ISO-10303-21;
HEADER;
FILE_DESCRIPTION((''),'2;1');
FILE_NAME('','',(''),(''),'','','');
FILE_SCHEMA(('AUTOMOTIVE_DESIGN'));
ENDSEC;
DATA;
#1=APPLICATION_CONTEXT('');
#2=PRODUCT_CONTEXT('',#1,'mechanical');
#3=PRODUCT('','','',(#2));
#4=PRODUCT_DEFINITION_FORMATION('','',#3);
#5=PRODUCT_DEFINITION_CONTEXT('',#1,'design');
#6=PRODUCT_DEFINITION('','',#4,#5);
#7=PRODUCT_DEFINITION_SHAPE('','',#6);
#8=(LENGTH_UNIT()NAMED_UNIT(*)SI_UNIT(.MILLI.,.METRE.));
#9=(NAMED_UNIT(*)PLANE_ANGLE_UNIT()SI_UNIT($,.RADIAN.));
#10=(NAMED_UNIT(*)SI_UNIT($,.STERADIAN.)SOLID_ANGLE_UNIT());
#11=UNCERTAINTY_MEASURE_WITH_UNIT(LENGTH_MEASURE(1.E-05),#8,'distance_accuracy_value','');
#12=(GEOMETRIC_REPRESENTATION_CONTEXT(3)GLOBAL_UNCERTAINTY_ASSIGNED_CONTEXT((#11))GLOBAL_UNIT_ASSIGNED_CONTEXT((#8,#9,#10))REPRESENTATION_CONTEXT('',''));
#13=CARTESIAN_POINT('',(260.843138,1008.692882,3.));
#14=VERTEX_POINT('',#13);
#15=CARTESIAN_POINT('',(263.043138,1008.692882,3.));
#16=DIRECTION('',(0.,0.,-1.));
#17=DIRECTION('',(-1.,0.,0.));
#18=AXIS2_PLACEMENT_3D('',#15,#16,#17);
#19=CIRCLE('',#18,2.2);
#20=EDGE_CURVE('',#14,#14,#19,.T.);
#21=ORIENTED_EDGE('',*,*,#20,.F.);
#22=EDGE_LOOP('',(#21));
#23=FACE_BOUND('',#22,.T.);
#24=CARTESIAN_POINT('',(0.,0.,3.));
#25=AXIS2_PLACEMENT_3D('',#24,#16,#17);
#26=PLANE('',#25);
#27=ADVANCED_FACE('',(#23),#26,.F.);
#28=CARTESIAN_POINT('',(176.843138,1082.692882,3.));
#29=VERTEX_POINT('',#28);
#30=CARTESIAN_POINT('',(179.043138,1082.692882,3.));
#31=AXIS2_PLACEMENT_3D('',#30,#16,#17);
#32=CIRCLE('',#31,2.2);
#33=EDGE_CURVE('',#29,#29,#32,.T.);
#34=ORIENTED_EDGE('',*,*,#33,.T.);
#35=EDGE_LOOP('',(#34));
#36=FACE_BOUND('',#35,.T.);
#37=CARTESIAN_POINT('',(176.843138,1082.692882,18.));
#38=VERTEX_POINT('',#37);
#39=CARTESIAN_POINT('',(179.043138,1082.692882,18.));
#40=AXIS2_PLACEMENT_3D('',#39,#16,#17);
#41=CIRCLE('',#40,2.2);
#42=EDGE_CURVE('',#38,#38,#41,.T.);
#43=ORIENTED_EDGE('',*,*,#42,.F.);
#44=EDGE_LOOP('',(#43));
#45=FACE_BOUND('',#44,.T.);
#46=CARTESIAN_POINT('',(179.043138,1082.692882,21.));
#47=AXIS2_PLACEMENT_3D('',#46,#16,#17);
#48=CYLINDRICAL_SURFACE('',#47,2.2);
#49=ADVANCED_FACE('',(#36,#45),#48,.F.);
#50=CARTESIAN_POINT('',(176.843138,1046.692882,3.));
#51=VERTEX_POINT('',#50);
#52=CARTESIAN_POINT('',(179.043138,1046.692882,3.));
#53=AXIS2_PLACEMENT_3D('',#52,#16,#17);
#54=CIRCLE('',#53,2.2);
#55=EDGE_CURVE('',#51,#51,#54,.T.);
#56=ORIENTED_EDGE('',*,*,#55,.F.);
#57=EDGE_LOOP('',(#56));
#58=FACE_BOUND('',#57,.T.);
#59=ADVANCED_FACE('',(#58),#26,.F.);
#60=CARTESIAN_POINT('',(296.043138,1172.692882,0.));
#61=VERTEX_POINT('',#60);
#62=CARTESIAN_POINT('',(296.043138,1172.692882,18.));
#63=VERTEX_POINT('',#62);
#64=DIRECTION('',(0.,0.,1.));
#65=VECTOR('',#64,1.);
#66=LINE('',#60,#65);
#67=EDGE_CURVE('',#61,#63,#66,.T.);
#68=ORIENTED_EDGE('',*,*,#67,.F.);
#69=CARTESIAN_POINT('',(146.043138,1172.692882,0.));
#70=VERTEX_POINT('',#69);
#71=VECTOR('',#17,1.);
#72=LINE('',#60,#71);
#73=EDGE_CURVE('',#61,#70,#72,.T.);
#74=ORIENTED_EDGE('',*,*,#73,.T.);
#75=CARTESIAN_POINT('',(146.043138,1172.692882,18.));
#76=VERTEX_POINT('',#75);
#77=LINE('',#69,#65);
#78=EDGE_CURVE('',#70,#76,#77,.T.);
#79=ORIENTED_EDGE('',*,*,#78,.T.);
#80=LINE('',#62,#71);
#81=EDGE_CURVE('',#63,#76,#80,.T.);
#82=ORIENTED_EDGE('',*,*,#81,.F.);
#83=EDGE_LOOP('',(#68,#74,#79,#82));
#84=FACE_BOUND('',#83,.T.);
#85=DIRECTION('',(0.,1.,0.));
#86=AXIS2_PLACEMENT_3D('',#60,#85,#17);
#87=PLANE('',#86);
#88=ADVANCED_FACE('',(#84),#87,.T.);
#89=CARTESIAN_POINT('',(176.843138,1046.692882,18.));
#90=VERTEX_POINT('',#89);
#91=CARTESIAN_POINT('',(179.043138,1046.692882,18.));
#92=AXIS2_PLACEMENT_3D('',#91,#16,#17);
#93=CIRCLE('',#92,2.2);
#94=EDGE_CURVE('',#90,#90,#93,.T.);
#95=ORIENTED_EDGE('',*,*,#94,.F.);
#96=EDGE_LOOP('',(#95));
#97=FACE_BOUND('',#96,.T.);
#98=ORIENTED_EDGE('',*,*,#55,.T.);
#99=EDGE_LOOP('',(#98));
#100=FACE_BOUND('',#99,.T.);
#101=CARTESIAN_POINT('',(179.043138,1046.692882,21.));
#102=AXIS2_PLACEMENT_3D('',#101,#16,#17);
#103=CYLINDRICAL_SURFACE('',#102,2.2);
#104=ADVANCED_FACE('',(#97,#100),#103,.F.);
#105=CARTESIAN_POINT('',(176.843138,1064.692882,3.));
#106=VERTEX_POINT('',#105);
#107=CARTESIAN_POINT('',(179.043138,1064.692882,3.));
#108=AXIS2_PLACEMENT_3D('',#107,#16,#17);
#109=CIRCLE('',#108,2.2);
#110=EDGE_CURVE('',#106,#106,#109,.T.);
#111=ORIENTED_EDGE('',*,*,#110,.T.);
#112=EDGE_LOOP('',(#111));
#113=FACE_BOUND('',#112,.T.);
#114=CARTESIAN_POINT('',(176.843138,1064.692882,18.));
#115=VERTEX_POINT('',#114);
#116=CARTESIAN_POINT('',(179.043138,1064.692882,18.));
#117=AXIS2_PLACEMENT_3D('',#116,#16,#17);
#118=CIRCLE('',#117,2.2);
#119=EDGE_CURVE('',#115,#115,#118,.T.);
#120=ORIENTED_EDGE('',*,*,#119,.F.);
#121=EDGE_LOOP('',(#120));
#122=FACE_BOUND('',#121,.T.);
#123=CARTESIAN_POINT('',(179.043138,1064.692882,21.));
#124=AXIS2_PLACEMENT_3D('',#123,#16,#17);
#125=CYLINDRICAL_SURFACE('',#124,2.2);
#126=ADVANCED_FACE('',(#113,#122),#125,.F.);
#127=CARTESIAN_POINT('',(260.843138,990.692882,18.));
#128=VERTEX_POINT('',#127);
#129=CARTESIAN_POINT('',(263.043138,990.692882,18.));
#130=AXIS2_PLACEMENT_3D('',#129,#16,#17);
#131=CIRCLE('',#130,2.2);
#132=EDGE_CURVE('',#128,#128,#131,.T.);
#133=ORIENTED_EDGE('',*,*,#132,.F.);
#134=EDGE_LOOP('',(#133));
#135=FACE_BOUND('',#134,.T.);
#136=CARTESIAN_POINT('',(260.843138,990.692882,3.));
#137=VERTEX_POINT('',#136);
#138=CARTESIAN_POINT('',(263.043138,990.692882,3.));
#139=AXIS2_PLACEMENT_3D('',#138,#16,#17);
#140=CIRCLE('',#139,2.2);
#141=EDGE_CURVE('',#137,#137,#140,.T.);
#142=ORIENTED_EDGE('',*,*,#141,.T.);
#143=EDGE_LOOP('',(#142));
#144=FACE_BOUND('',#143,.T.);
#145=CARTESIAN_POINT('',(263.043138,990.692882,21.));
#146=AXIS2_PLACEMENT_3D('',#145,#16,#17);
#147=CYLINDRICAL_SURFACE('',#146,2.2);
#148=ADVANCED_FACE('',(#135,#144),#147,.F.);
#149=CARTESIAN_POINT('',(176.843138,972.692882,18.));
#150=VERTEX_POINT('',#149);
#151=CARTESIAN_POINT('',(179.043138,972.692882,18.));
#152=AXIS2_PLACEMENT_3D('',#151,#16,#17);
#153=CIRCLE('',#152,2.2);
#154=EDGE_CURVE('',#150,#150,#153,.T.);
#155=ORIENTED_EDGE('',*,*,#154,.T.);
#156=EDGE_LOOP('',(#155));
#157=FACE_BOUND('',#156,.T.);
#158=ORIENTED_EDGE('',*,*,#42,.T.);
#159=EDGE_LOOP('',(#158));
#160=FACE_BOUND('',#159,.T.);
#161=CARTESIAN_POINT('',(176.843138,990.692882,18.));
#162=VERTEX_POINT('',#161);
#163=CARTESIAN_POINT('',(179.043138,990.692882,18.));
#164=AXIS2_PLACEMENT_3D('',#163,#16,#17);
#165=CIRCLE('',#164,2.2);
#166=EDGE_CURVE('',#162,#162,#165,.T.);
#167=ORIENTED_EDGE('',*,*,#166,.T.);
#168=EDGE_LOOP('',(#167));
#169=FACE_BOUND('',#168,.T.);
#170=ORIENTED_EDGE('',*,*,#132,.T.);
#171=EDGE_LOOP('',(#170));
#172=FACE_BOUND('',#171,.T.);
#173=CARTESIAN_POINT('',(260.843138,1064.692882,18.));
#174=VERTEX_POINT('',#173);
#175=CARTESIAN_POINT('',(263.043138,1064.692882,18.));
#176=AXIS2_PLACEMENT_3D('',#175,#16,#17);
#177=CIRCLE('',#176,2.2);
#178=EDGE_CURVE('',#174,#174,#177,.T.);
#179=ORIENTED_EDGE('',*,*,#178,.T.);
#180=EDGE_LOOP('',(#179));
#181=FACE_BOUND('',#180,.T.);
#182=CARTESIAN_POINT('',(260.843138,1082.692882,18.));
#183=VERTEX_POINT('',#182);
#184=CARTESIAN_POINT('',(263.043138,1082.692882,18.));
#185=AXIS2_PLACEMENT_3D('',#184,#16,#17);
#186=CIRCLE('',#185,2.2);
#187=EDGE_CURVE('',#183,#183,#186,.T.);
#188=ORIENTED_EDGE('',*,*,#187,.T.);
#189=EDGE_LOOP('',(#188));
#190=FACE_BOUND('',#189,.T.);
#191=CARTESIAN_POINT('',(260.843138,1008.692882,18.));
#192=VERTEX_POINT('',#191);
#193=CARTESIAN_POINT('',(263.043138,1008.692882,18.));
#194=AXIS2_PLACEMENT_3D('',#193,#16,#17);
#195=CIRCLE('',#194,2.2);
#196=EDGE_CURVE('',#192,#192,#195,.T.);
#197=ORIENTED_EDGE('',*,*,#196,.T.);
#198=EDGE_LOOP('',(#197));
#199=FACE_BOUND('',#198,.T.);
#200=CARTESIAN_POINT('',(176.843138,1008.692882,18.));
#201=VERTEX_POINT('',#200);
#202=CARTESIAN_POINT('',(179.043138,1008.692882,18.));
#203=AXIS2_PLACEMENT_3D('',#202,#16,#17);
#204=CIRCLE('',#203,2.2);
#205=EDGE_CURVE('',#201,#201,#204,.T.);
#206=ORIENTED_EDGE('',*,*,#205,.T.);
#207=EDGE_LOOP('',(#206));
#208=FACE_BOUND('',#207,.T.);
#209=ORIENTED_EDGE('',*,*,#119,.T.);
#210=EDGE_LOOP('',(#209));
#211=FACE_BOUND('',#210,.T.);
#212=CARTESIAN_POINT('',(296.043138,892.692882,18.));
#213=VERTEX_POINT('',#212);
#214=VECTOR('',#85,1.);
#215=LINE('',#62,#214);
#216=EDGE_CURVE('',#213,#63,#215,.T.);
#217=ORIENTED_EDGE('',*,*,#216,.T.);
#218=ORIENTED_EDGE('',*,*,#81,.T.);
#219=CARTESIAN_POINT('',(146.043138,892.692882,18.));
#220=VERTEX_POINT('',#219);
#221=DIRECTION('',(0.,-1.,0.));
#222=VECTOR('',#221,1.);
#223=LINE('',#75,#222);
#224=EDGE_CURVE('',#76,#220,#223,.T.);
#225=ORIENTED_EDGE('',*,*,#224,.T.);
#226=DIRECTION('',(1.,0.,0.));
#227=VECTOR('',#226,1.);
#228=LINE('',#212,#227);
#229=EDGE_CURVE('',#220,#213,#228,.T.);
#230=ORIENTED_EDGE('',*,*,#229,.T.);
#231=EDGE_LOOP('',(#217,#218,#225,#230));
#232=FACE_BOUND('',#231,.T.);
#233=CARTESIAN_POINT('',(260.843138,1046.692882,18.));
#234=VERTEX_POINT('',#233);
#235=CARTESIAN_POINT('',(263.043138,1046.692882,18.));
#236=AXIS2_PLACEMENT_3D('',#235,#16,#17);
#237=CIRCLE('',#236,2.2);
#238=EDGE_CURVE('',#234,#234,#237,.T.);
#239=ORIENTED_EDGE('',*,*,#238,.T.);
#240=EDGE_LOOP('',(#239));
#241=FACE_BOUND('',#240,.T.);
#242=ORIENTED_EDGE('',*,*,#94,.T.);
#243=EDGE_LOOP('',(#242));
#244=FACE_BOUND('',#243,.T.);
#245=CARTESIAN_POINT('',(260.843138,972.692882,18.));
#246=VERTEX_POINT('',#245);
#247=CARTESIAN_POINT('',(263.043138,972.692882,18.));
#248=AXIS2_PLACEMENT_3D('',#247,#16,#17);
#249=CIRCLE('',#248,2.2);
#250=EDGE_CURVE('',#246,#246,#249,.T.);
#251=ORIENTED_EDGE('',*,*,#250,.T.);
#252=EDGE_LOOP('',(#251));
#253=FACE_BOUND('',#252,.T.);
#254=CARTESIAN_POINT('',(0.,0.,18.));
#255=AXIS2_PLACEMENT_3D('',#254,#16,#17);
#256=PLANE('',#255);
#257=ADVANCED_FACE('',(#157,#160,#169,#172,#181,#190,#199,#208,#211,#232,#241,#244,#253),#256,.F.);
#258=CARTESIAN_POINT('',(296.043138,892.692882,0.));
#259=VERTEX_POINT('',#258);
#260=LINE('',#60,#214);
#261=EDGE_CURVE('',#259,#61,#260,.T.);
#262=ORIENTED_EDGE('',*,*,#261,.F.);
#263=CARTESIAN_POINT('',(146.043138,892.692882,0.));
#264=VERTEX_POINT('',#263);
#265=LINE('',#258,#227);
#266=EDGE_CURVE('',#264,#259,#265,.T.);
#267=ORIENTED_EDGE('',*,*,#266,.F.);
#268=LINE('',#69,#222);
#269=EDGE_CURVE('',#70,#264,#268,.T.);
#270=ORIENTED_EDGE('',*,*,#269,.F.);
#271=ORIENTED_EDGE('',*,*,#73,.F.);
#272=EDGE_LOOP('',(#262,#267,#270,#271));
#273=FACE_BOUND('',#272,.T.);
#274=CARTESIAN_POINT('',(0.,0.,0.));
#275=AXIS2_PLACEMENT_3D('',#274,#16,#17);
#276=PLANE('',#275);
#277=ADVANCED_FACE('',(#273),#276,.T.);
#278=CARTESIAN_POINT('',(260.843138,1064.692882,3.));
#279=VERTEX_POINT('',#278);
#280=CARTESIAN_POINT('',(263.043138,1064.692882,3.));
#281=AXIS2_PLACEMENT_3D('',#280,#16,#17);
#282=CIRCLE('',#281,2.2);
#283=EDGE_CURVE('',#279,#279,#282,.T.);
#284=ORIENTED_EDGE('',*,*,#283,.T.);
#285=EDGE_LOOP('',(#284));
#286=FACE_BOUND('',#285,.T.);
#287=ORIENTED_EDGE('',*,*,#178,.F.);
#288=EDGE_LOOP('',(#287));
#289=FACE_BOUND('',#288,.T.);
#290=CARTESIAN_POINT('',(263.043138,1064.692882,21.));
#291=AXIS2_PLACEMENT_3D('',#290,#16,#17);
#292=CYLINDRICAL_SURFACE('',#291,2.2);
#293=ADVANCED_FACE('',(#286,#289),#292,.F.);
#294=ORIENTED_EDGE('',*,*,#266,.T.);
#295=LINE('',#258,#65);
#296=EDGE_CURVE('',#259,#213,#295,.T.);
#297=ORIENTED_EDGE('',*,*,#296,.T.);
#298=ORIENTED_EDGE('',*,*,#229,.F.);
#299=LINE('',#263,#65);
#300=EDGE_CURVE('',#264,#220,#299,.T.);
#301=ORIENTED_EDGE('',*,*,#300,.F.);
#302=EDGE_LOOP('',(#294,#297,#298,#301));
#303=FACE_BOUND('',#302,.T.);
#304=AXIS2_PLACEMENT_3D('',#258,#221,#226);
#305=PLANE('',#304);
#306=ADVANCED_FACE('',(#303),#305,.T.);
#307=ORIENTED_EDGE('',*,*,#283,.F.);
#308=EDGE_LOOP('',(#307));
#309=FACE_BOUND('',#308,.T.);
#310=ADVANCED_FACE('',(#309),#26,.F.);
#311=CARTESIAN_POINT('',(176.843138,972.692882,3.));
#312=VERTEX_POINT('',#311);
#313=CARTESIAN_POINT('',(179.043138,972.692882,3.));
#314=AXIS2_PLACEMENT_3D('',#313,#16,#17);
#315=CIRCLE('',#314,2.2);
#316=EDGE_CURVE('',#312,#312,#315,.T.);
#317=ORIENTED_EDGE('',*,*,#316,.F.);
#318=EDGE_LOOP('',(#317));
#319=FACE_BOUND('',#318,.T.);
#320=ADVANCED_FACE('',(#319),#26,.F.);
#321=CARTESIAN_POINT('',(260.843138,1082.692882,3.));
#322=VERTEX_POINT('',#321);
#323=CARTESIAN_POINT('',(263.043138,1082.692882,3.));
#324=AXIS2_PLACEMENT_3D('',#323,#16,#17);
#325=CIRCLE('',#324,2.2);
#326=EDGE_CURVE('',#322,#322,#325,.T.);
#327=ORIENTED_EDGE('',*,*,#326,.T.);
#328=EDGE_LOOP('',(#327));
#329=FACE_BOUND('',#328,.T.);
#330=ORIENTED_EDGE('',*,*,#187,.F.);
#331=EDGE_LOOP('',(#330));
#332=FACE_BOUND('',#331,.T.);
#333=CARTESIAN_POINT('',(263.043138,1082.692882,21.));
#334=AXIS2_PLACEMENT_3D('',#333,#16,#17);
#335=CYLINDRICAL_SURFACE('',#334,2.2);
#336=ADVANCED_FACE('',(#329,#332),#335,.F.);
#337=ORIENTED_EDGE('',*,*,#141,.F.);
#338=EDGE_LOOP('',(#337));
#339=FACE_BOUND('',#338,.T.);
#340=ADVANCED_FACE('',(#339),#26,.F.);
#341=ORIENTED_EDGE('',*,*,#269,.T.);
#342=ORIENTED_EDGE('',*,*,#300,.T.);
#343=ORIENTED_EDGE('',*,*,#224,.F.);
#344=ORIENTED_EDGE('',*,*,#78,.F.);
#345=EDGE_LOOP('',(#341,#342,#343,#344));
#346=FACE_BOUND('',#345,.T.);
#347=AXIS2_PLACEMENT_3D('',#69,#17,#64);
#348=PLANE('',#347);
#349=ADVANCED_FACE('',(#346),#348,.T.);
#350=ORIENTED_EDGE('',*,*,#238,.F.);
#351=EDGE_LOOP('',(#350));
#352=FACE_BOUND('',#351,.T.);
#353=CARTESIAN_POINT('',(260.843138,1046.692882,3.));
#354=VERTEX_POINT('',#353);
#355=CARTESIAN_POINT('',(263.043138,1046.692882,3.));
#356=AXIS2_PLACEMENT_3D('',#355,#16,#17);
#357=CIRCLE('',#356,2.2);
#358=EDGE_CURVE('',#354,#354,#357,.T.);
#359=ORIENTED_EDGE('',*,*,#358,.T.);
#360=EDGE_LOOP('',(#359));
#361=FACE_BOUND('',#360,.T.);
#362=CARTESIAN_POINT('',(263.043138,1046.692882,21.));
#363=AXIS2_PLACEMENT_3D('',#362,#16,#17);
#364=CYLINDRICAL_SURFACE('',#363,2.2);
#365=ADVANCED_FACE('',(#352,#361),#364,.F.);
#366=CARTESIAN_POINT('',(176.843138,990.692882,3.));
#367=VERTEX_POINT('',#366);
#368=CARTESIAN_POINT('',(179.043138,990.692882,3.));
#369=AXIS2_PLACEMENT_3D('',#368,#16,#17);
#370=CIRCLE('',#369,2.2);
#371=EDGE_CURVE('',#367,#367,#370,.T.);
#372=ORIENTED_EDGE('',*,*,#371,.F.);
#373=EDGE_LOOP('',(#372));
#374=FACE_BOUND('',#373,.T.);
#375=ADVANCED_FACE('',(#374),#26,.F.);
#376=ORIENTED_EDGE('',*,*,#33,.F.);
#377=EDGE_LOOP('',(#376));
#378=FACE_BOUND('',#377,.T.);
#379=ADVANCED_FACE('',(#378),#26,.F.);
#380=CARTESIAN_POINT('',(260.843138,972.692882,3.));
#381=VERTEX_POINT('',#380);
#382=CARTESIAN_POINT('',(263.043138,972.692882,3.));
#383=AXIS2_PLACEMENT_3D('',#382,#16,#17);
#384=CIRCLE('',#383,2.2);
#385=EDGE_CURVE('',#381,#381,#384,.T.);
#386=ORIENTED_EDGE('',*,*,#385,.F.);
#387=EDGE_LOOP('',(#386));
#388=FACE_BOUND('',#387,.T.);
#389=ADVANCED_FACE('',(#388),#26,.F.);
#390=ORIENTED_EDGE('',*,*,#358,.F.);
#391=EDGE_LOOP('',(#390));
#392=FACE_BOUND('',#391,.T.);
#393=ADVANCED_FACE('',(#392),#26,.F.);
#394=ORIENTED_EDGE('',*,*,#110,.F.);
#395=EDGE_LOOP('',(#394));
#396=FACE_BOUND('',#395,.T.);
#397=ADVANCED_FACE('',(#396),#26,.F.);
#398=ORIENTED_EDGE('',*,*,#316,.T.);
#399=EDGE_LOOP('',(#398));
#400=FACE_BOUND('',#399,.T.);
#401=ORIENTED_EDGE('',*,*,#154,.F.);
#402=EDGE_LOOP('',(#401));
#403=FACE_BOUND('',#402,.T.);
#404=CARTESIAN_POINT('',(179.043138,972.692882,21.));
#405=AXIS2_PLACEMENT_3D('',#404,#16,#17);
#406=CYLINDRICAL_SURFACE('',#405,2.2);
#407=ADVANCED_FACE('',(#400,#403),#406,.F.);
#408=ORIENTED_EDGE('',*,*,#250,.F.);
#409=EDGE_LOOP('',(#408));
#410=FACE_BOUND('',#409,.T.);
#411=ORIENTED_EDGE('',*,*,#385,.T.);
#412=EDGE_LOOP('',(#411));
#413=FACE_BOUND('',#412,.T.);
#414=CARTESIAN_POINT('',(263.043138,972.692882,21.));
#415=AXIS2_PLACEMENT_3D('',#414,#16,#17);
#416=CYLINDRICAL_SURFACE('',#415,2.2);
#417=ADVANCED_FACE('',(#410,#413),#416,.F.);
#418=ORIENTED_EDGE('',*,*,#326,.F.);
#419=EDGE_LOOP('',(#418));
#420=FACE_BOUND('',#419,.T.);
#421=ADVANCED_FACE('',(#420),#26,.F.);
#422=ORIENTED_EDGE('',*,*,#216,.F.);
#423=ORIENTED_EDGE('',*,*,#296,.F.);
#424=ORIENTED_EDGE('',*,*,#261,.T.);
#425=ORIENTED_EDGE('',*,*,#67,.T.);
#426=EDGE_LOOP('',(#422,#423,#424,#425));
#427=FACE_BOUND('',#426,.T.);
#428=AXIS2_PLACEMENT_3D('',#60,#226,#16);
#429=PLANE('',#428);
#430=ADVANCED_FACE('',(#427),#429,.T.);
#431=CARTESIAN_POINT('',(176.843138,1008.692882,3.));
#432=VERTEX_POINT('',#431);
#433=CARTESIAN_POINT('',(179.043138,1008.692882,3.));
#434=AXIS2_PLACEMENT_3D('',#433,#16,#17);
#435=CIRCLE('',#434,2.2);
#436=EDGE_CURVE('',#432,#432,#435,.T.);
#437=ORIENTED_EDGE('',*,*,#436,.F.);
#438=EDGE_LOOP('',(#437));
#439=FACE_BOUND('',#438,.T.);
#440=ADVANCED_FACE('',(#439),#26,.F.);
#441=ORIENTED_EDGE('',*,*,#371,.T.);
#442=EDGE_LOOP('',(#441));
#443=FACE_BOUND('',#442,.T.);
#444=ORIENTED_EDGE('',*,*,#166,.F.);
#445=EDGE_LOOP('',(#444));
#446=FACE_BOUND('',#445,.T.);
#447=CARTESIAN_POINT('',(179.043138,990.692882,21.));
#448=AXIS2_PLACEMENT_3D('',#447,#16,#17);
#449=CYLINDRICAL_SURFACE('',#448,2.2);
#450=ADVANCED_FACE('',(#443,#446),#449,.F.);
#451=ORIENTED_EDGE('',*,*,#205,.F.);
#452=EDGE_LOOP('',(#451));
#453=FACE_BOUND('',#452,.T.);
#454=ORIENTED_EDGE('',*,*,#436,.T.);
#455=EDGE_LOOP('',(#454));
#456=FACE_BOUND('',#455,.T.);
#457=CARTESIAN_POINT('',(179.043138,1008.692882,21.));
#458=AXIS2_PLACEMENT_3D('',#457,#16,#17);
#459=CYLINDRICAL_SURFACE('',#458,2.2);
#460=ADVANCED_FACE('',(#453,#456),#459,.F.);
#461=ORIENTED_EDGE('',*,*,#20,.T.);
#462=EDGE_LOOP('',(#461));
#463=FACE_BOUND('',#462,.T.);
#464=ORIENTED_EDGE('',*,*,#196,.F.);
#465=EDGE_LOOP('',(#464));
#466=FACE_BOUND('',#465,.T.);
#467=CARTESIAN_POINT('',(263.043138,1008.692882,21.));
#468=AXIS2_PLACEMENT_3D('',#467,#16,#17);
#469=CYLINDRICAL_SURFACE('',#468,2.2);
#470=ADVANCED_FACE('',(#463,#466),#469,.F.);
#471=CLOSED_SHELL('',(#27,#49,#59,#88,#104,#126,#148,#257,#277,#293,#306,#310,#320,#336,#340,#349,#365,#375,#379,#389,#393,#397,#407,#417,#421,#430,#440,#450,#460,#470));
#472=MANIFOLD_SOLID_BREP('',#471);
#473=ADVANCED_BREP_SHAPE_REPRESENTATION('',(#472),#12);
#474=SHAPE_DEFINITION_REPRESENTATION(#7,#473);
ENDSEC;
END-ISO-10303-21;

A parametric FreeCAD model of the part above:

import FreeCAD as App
import Part
import Sketcher

V = App.Vector

doc = App.newDocument("Part")
body = doc.addObject("PartDesign::Body", "Body")

# Sketch on XY plane
sketch1 = body.newObject("Sketcher::SketchObject", "Sketch")
sketch1.AttachmentSupport = (doc.getObject("XY_Plane"), [""])
sketch1.MapMode = "FlatFace"
sketch1.addGeometry([
    Part.LineSegment(V(296, 1173, 0), V(146, 1173, 0)),
    Part.LineSegment(V(146, 1173, 0), V(146, 893, 0)),
    Part.LineSegment(V(146, 893, 0), V(296, 893, 0)),
    Part.LineSegment(V(296, 893, 0), V(296, 1173, 0)),
], False)
sketch1.addConstraint([
    Sketcher.Constraint("Coincident", 0, 2, 1, 1),
    Sketcher.Constraint("Coincident", 1, 2, 2, 1),
    Sketcher.Constraint("Coincident", 2, 2, 3, 1),
    Sketcher.Constraint("Coincident", 3, 2, 0, 1),
    Sketcher.Constraint("Horizontal", 0),
    Sketcher.Constraint("Vertical", 1),
    Sketcher.Constraint("Horizontal", 2),
    Sketcher.Constraint("Vertical", 3),
    Sketcher.Constraint("DistanceX", 0, 2, 0, 1, 150.0),
    Sketcher.Constraint("DistanceY", 1, 2, 1, 1, 280.0),
    Sketcher.Constraint("DistanceY", -1, 1, 2, 2, 892.692882),
    Sketcher.Constraint("DistanceX", -1, 1, 0, 2, 146.043138),
])
pad1 = body.newObject("PartDesign::Pad", "Pad")
pad1.Profile = sketch1
pad1.Length = 18

# Sketch on XY plane
sketch2 = body.newObject("Sketcher::SketchObject", "Sketch001")
sketch2.AttachmentSupport = (doc.getObject("XY_Plane"), [""])
sketch2.MapMode = "FlatFace"
sketch2.AttachmentOffset = App.Placement(V(0, 0, 21), App.Rotation())
sketch2.addGeometry([
    Part.Circle(V(179, 1082.7, 0), V(0, 0, 1), 2.2),  # 0
    Part.Circle(V(179, 1064.7, 0), V(0, 0, 1), 2.2),  # 1
    Part.Circle(V(179, 1046.7, 0), V(0, 0, 1), 2.2),  # 2
    Part.Circle(V(179, 1008.7, 0), V(0, 0, 1), 2.2),  # 3
    Part.Circle(V(179, 990.7, 0), V(0, 0, 1), 2.2),  # 4
    Part.Circle(V(179, 972.7, 0), V(0, 0, 1), 2.2),  # 5
    Part.Circle(V(263, 972.7, 0), V(0, 0, 1), 2.2),  # 6
    Part.Circle(V(263, 990.7, 0), V(0, 0, 1), 2.2),  # 7
    Part.Circle(V(263, 1008.7, 0), V(0, 0, 1), 2.2),  # 8
    Part.Circle(V(263, 1046.7, 0), V(0, 0, 1), 2.2),  # 9
    Part.Circle(V(263, 1082.7, 0), V(0, 0, 1), 2.2),  # 10
    Part.Circle(V(263, 1064.7, 0), V(0, 0, 1), 2.2),  # 11
], False)
sketch2.addConstraint([
    Sketcher.Constraint("Equal", 0, 1),
    Sketcher.Constraint("Equal", 1, 2),
    Sketcher.Constraint("Equal", 2, 3),
    Sketcher.Constraint("Equal", 3, 4),
    Sketcher.Constraint("Equal", 4, 5),
    Sketcher.Constraint("Equal", 5, 6),
    Sketcher.Constraint("Equal", 6, 7),
    Sketcher.Constraint("Equal", 7, 8),
    Sketcher.Constraint("Equal", 8, 9),
    Sketcher.Constraint("Equal", 9, 10),
    Sketcher.Constraint("Equal", 10, 11),
    Sketcher.Constraint("Horizontal", 5, 3, 6, 3),
    Sketcher.Constraint("Horizontal", 4, 3, 7, 3),
    Sketcher.Constraint("Horizontal", 3, 3, 8, 3),
    Sketcher.Constraint("Horizontal", 2, 3, 9, 3),
    Sketcher.Constraint("Horizontal", 0, 3, 10, 3),
    Sketcher.Constraint("Horizontal", 1, 3, 11, 3),
    Sketcher.Constraint("Vertical", 0, 3, 1, 3),
    Sketcher.Constraint("Vertical", 1, 3, 2, 3),
    Sketcher.Constraint("Vertical", 2, 3, 3, 3),
    Sketcher.Constraint("Vertical", 3, 3, 4, 3),
    Sketcher.Constraint("Vertical", 4, 3, 5, 3),
    Sketcher.Constraint("Vertical", 6, 3, 7, 3),
    Sketcher.Constraint("Vertical", 7, 3, 8, 3),
    Sketcher.Constraint("Vertical", 8, 3, 9, 3),
    Sketcher.Constraint("Vertical", 9, 3, 10, 3),
    Sketcher.Constraint("Vertical", 10, 3, 11, 3),
    Sketcher.Constraint("Diameter", 0, 4.4),
    Sketcher.Constraint("DistanceY", 1, 3, 0, 3, 18.0),
    Sketcher.Constraint("DistanceY", 2, 3, 1, 3, 18.0),
    Sketcher.Constraint("DistanceY", 3, 3, 2, 3, 38.0),
    Sketcher.Constraint("DistanceY", 4, 3, 3, 3, 18.0),
    Sketcher.Constraint("DistanceY", 5, 3, 4, 3, 18.0),
    Sketcher.Constraint("DistanceX", 5, 3, 6, 3, 84.0),
    Sketcher.Constraint("DistanceY", -1, 1, 6, 3, 972.692882),
    Sketcher.Constraint("DistanceX", -1, 1, 0, 3, 179.043138),
])
pocket1 = body.newObject("PartDesign::Pocket", "Pocket")
pocket1.Profile = sketch2
pocket1.Length = 18

doc.recompute()
